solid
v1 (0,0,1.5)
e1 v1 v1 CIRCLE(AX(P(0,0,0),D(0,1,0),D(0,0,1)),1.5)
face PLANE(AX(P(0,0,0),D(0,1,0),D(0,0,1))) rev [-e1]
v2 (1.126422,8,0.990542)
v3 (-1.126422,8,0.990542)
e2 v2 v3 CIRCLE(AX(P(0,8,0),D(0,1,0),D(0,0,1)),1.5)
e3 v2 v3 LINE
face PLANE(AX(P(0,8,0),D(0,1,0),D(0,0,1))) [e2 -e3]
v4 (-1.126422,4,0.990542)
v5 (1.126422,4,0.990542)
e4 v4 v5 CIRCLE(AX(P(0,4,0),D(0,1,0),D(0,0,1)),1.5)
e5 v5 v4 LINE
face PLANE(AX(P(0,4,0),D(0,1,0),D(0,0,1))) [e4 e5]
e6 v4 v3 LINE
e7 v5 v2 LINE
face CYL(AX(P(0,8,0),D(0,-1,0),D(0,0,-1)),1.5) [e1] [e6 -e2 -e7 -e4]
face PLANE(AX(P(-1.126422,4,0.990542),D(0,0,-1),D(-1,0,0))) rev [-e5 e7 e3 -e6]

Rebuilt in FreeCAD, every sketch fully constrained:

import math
import FreeCAD as App
import Part
import Sketcher
Q = App.Units.Quantity

doc = App.newDocument("Part")
body = doc.addObject("PartDesign::Body", "Body")

sketch1 = doc.addObject("Sketcher::SketchObject", "Sketch")
body.addObject(sketch1)
sketch1.AttachmentSupport = (doc.XZ_Plane, [""])
sketch1.MapMode = "FlatFace"
sketch1.addGeometry(Part.Circle(App.Vector(0, 0, 0), App.Vector(0, 0, 1), 1.5), False)
sketch1.addConstraint(Sketcher.Constraint("Coincident", 0, 3, -1, 1))
sketch1.addConstraint(Sketcher.Constraint("Diameter", 0, Q("3 mm")))
pad1 = doc.addObject("PartDesign::Pad", "Pad")
body.addObject(pad1)
pad1.Profile = sketch1
pad1.Length = 8
pad1.Reversed = True

sketch2 = doc.addObject("Sketcher::SketchObject", "Sketch001")
body.addObject(sketch2)
sketch2.AttachmentSupport = (doc.XZ_Plane, [""])
sketch2.MapMode = "FlatFace"
sketch2.AttachmentOffset = App.Placement(App.Vector(0, 0, -4), App.Rotation())
sketch2.addGeometry(Part.LineSegment(App.Vector(1.126422, 0.990542, 0), App.Vector(-1.126422, 0.990542, 0)), False)
sketch2.addGeometry(Part.ArcOfCircle(Part.Circle(App.Vector(0, 0, 0), App.Vector(0, 0, 1), 1.5), math.radians(41.327448), math.radians(138.672552)), False)
sketch2.addConstraint(Sketcher.Constraint("Coincident", 0, 1, 1, 1))
sketch2.addConstraint(Sketcher.Constraint("Coincident", 1, 2, 0, 2))
sketch2.addConstraint(Sketcher.Constraint("Horizontal", 0))
sketch2.addConstraint(Sketcher.Constraint("Coincident", 1, 3, -1, 1))
sketch2.addConstraint(Sketcher.Constraint("Radius", 1, Q("1.5 mm")))
sketch2.addConstraint(Sketcher.Constraint("DistanceX", 0, 2, 0, 1, Q("2.252844 mm")))
pocket1 = doc.addObject("PartDesign::Pocket", "Pocket")
body.addObject(pocket1)
pocket1.Profile = sketch2
pocket1.Length = 4

doc.recompute()
